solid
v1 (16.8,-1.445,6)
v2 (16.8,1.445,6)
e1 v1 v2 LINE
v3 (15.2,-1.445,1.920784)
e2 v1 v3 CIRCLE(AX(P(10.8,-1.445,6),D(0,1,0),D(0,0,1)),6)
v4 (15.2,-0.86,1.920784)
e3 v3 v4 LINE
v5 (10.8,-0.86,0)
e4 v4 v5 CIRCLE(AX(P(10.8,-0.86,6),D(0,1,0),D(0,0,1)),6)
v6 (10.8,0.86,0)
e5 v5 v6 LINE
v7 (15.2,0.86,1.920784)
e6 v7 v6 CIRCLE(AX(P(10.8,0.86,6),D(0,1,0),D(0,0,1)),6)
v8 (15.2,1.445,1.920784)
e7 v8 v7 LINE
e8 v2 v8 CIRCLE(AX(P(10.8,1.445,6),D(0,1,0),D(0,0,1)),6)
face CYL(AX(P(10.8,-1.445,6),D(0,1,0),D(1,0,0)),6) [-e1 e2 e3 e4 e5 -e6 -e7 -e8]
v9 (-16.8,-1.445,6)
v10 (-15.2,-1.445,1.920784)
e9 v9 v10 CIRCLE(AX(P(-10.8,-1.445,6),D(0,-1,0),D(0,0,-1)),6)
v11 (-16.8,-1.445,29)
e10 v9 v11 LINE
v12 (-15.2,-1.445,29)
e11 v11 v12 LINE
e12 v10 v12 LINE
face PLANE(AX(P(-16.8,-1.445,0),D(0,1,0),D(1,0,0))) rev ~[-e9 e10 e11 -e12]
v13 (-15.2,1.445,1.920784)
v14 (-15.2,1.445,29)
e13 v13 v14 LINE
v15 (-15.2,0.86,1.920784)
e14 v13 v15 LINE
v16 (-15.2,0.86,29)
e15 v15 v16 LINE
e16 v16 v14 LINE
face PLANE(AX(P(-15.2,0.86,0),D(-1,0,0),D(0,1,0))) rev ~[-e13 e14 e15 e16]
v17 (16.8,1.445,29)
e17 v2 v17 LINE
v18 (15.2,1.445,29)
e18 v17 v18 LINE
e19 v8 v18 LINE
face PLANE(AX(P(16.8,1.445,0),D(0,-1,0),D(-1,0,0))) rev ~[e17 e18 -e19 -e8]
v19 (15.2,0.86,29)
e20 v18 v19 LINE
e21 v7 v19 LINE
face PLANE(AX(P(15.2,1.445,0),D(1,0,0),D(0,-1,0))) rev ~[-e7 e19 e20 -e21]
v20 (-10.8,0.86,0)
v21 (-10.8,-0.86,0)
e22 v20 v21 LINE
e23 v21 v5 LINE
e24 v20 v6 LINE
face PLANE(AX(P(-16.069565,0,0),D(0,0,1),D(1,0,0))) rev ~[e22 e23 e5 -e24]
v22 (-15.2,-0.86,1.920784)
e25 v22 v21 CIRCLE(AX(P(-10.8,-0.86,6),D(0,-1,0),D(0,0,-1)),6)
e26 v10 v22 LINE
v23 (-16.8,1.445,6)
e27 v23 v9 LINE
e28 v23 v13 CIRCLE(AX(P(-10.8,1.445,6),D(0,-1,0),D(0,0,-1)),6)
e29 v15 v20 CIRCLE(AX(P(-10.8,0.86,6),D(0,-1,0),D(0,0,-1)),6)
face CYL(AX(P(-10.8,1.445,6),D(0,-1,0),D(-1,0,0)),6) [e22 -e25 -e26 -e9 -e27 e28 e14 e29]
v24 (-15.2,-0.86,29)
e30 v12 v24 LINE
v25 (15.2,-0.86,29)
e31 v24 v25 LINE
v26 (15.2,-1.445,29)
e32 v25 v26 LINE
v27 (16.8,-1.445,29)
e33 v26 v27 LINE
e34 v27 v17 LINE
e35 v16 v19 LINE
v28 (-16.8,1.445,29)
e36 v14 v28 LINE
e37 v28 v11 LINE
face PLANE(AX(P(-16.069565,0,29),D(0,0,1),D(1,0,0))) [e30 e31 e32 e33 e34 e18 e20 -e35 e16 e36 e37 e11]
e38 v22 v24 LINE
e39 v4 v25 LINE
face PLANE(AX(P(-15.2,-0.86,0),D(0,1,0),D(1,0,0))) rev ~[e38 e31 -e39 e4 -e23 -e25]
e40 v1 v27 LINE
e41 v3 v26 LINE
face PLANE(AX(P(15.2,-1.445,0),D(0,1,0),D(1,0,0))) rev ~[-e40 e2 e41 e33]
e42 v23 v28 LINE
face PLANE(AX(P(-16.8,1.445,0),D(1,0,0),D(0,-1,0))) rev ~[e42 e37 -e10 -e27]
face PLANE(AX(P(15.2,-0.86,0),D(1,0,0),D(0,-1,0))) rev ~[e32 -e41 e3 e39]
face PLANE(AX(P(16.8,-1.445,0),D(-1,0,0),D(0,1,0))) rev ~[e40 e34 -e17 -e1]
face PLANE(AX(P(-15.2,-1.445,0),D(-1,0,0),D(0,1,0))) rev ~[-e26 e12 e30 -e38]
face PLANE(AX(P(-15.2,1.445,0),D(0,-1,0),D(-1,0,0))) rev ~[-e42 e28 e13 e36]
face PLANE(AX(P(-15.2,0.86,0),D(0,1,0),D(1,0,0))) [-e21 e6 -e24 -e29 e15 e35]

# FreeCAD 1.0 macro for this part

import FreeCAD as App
import Part
import Sketcher
Q = App.Units.Quantity


def edges_at(feature, points):
    """Names of the edges that pass closest to the given points."""
    edges = feature.Shape.Edges
    near = lambda p: min(range(len(edges)), key=lambda i: edges[i].distToShape(Part.Vertex(*p))[0])
    return sorted({f"Edge{near(p) + 1}" for p in points})

doc = App.newDocument("Part")
body = doc.addObject("PartDesign::Body", "Body")

sketch1 = body.newObject("Sketcher::SketchObject", "Sketch")
sketch1.AttachmentSupport = (doc.getObject("XY_Plane"), [""])
sketch1.MapMode = "FlatFace"
sketch1.addGeometry([
    Part.LineSegment(App.Vector(-15.2, 1.4, 0), App.Vector(-16.8, 1.4, 0)),
    Part.LineSegment(App.Vector(-16.8, 1.4, 0), App.Vector(-16.8, -1.4, 0)),
    Part.LineSegment(App.Vector(-16.8, -1.4, 0), App.Vector(-15.2, -1.4, 0)),
    Part.LineSegment(App.Vector(-15.2, -1.4, 0), App.Vector(-15.2, -0.9, 0)),
    Part.LineSegment(App.Vector(-15.2, -0.9, 0), App.Vector(15.2, -0.9, 0)),
    Part.LineSegment(App.Vector(15.2, -0.9, 0), App.Vector(15.2, -1.4, 0)),
    Part.LineSegment(App.Vector(15.2, -1.4, 0), App.Vector(16.8, -1.4, 0)),
    Part.LineSegment(App.Vector(16.8, -1.4, 0), App.Vector(16.8, 1.4, 0)),
    Part.LineSegment(App.Vector(16.8, 1.4, 0), App.Vector(15.2, 1.4, 0)),
    Part.LineSegment(App.Vector(15.2, 1.4, 0), App.Vector(15.2, 0.9, 0)),
    Part.LineSegment(App.Vector(15.2, 0.9, 0), App.Vector(-15.2, 0.9, 0)),
    Part.LineSegment(App.Vector(-15.2, 0.9, 0), App.Vector(-15.2, 1.4, 0)),
], False)
sketch1.addConstraint([
    Sketcher.Constraint("Coincident", 0, 2, 1, 1),
    Sketcher.Constraint("Coincident", 1, 2, 2, 1),
    Sketcher.Constraint("Coincident", 2, 2, 3, 1),
    Sketcher.Constraint("Coincident", 3, 2, 4, 1),
    Sketcher.Constraint("Coincident", 4, 2, 5, 1),
    Sketcher.Constraint("Coincident", 5, 2, 6, 1),
    Sketcher.Constraint("Coincident", 6, 2, 7, 1),
    Sketcher.Constraint("Coincident", 7, 2, 8, 1),
    Sketcher.Constraint("Coincident", 8, 2, 9, 1),
    Sketcher.Constraint("Coincident", 9, 2, 10, 1),
    Sketcher.Constraint("Coincident", 10, 2, 11, 1),
    Sketcher.Constraint("Coincident", 11, 2, 0, 1),
    Sketcher.Constraint("Horizontal", 0),
    Sketcher.Constraint("Vertical", 1),
    Sketcher.Constraint("Horizontal", 2),
    Sketcher.Constraint("Vertical", 3),
    Sketcher.Constraint("Horizontal", 4),
    Sketcher.Constraint("Vertical", 5),
    Sketcher.Constraint("Horizontal", 6),
    Sketcher.Constraint("Vertical", 7),
    Sketcher.Constraint("Horizontal", 8),
    Sketcher.Constraint("Vertical", 9),
    Sketcher.Constraint("Horizontal", 10),
    Sketcher.Constraint("Vertical", 11),
    Sketcher.Constraint("Symmetric", 0, 2, 6, 2, -1, 1),
    Sketcher.Constraint("Symmetric", 2, 2, 8, 2, -1, 1),
    Sketcher.Constraint("Symmetric", 4, 2, 10, 2, -1, 1),
    Sketcher.Constraint("Symmetric", 2, 2, 5, 2, -2),
    Sketcher.Constraint("DistanceX", 0, 2, 0, 1, Q("1.6 mm")),
    Sketcher.Constraint("DistanceX", 4, 1, 4, 2, Q("30.4 mm")),
    Sketcher.Constraint("DistanceY", 1, 2, 1, 1, Q("2.89 mm")),
    Sketcher.Constraint("DistanceY", 3, 1, 3, 2, Q("0.585 mm")),
])
pad1 = body.newObject("PartDesign::Pad", "Pad")
pad1.Profile = sketch1
pad1.Length = 29
doc.recompute()

fillet = body.newObject("PartDesign::Fillet", "Fillet")
fillet.Base = (pad1, edges_at(pad1, [(-16.8, 0, 0), (16.8, 0, 0)]))
fillet.Radius = 6

doc.recompute()
